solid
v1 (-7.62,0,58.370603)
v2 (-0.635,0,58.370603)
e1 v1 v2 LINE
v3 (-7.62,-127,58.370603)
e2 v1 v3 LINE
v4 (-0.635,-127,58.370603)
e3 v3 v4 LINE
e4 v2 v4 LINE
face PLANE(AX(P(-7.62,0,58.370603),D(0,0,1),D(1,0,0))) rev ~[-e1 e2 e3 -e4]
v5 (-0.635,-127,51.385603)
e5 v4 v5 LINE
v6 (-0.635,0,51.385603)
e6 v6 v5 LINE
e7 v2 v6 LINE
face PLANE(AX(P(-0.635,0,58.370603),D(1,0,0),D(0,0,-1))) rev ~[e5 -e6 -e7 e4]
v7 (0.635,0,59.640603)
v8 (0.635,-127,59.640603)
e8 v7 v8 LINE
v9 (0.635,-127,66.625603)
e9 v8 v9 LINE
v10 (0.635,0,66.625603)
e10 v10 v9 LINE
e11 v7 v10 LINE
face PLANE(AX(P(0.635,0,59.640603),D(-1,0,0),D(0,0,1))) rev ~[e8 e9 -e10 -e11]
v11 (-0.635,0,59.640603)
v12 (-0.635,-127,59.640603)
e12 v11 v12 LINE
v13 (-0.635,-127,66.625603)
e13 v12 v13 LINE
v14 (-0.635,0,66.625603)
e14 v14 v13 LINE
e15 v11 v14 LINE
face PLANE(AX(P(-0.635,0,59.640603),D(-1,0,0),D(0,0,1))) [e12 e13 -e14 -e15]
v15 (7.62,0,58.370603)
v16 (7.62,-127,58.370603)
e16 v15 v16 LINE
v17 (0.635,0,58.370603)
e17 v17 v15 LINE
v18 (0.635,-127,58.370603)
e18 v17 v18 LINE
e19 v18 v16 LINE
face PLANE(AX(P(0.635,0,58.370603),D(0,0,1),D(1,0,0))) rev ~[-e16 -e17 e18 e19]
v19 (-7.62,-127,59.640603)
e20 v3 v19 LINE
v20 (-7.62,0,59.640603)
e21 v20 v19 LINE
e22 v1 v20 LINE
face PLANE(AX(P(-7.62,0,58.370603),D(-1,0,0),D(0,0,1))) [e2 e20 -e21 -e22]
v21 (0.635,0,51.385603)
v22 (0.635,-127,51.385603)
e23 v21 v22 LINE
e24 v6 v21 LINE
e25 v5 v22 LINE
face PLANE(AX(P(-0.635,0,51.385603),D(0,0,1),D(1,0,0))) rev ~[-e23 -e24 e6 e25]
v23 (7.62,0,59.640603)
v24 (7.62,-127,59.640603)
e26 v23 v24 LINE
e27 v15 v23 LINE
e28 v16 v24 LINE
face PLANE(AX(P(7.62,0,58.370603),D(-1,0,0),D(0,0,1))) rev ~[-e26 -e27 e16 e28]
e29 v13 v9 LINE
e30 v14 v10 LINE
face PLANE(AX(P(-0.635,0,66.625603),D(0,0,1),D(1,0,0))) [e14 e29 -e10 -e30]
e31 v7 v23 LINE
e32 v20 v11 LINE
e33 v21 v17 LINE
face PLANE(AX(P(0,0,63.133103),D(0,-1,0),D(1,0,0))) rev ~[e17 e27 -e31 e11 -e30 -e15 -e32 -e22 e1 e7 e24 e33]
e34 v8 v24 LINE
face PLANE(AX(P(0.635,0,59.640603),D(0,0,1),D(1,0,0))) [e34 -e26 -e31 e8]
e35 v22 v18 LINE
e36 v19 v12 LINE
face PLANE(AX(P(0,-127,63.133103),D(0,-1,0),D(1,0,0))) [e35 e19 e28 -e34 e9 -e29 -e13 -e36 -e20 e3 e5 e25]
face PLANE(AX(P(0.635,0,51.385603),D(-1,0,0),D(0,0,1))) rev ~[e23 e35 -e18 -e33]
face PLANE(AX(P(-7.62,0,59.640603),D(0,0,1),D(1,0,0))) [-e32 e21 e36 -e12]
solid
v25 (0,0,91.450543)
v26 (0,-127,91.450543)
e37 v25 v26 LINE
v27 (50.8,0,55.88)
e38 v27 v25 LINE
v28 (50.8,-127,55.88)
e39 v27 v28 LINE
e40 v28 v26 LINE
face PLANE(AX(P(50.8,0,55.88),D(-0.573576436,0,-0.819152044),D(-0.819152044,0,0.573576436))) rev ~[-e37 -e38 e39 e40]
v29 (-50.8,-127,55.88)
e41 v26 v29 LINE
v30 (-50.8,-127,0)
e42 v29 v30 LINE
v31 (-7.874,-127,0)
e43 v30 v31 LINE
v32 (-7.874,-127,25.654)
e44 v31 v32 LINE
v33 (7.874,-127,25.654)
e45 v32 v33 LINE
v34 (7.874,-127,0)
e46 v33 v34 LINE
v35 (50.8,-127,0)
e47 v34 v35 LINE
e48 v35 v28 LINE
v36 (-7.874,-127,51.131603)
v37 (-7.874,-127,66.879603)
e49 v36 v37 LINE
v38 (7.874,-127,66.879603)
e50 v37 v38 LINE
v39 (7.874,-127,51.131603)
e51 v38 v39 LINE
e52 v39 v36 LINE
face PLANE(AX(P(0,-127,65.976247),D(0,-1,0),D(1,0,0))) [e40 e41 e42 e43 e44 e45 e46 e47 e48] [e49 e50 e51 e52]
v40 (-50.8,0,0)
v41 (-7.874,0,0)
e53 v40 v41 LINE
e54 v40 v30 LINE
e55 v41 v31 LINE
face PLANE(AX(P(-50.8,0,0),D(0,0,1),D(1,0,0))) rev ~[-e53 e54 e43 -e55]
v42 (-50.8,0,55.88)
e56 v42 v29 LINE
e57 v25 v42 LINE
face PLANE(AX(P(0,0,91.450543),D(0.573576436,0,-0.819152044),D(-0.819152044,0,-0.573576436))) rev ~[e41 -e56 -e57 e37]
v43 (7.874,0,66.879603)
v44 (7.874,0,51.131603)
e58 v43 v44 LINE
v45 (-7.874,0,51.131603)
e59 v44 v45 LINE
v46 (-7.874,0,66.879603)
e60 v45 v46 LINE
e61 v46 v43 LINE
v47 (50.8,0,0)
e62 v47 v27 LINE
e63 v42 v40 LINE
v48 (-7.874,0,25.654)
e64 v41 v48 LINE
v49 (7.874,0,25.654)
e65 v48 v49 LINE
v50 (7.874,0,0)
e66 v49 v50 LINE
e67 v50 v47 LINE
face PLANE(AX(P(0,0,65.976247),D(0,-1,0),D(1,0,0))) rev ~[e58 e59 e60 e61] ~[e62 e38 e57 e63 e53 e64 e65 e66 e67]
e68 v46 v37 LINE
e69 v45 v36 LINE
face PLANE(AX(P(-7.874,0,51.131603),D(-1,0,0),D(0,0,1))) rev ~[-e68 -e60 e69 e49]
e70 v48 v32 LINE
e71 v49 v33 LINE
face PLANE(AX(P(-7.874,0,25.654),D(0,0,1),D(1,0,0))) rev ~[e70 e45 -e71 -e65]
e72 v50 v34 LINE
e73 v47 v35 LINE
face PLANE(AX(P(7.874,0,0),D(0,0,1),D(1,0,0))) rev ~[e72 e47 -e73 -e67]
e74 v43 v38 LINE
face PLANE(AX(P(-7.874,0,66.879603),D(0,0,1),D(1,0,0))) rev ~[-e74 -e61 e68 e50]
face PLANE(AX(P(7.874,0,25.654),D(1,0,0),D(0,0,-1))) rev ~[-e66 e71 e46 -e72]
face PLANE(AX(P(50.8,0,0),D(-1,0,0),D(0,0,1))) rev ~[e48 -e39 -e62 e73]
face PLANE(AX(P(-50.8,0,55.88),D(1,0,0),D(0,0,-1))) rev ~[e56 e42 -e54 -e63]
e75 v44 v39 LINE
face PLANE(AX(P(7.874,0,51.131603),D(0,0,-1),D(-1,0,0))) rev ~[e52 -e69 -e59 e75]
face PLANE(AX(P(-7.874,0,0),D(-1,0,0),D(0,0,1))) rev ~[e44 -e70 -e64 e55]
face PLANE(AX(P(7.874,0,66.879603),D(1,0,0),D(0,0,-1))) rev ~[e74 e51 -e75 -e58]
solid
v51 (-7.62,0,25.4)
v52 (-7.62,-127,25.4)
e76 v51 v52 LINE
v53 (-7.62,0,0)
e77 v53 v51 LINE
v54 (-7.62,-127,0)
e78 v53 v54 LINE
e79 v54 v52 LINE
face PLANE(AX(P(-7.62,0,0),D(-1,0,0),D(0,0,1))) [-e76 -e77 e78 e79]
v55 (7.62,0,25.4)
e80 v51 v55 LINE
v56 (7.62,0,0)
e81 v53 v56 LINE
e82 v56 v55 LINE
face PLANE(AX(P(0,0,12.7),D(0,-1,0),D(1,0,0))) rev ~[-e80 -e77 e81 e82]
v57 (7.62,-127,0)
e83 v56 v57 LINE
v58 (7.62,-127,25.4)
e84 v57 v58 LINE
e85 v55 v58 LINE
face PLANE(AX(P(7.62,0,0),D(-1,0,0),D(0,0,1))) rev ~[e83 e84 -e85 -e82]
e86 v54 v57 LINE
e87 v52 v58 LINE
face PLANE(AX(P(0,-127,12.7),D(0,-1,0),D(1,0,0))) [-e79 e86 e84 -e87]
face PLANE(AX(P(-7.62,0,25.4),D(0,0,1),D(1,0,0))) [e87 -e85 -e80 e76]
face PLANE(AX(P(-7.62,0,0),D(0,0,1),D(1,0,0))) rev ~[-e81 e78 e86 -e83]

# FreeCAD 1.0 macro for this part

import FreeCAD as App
import Part
import Sketcher
from FreeCAD import Vector
Q = App.Units.Quantity

doc = App.newDocument("Part")
body = doc.addObject("PartDesign::Body", "Body")

# Sketch on XZ plane
sketch1 = body.newObject("Sketcher::SketchObject", "Sketch")
sketch1.AttachmentSupport = (doc.getObject("XZ_Plane"), [""])
sketch1.MapMode = "FlatFace"
sketch1.addGeometry(Part.LineSegment(Vector(0, 91.450543, 0), Vector(-50.8, 55.88, 0)), False)
sketch1.addGeometry(Part.LineSegment(Vector(-50.8, 55.88, 0), Vector(-50.8, 0, 0)), False)
sketch1.addGeometry(Part.LineSegment(Vector(-50.8, 0, 0), Vector(-7.874, 0, 0)), False)
sketch1.addGeometry(Part.LineSegment(Vector(-7.874, 0, 0), Vector(-7.874, 25.654, 0)), False)
sketch1.addGeometry(Part.LineSegment(Vector(-7.874, 25.654, 0), Vector(7.874, 25.654, 0)), False)
sketch1.addGeometry(Part.LineSegment(Vector(7.874, 25.654, 0), Vector(7.874, 0, 0)), False)
sketch1.addGeometry(Part.LineSegment(Vector(7.874, 0, 0), Vector(50.8, 0, 0)), False)
sketch1.addGeometry(Part.LineSegment(Vector(50.8, 0, 0), Vector(50.8, 55.88, 0)), False)
sketch1.addGeometry(Part.LineSegment(Vector(50.8, 55.88, 0), Vector(0, 91.450543, 0)), False)
sketch1.addGeometry(Part.LineSegment(Vector(-7.874, 66.879603, 0), Vector(7.874, 66.879603, 0)), False)
sketch1.addGeometry(Part.LineSegment(Vector(7.874, 66.879603, 0), Vector(7.874, 51.131603, 0)), False)
sketch1.addGeometry(Part.LineSegment(Vector(7.874, 51.131603, 0), Vector(-7.874, 51.131603, 0)), False)
sketch1.addGeometry(Part.LineSegment(Vector(-7.874, 51.131603, 0), Vector(-7.874, 66.879603, 0)), False)
sketch1.addConstraint(Sketcher.Constraint("Coincident", 0, 2, 1, 1))
sketch1.addConstraint(Sketcher.Constraint("Coincident", 1, 2, 2, 1))
sketch1.addConstraint(Sketcher.Constraint("Coincident", 2, 2, 3, 1))
sketch1.addConstraint(Sketcher.Constraint("Coincident", 3, 2, 4, 1))
sketch1.addConstraint(Sketcher.Constraint("Coincident", 4, 2, 5, 1))
sketch1.addConstraint(Sketcher.Constraint("Coincident", 5, 2, 6, 1))
sketch1.addConstraint(Sketcher.Constraint("Coincident", 6, 2, 7, 1))
sketch1.addConstraint(Sketcher.Constraint("Coincident", 7, 2, 8, 1))
sketch1.addConstraint(Sketcher.Constraint("Coincident", 8, 2, 0, 1))
sketch1.addConstraint(Sketcher.Constraint("Coincident", 9, 2, 10, 1))
sketch1.addConstraint(Sketcher.Constraint("Coincident", 10, 2, 11, 1))
sketch1.addConstraint(Sketcher.Constraint("Coincident", 11, 2, 12, 1))
sketch1.addConstraint(Sketcher.Constraint("Coincident", 12, 2, 9, 1))
sketch1.addConstraint(Sketcher.Constraint("Vertical", 1))
sketch1.addConstraint(Sketcher.Constraint("Horizontal", 2))
sketch1.addConstraint(Sketcher.Constraint("Vertical", 3))
sketch1.addConstraint(Sketcher.Constraint("Horizontal", 4))
sketch1.addConstraint(Sketcher.Constraint("Vertical", 5))
sketch1.addConstraint(Sketcher.Constraint("Horizontal", 6))
sketch1.addConstraint(Sketcher.Constraint("Vertical", 7))
sketch1.addConstraint(Sketcher.Constraint("Horizontal", 9))
sketch1.addConstraint(Sketcher.Constraint("Vertical", 10))
sketch1.addConstraint(Sketcher.Constraint("Horizontal", 11))
sketch1.addConstraint(Sketcher.Constraint("Vertical", 12))
sketch1.addConstraint(Sketcher.Constraint("Symmetric", 2, 2, 5, 2, -1, 1))
sketch1.addConstraint(Sketcher.Constraint("Symmetric", 1, 2, 6, 2, -2))
sketch1.addConstraint(Sketcher.Constraint("PointOnObject", 8, 2, -2))
sketch1.addConstraint(Sketcher.Constraint("Horizontal", 0, 2, 7, 2))
sketch1.addConstraint(Sketcher.Constraint("Vertical", 5, 2, 9, 2))
sketch1.addConstraint(Sketcher.Constraint("Vertical", 3, 2, 11, 2))
sketch1.addConstraint(Sketcher.Constraint("Equal", 11, 10))
sketch1.addConstraint(Sketcher.Constraint("DistanceY", 1, 2, 1, 1, Q("2.2 in")))
sketch1.addConstraint(Sketcher.Constraint("DistanceX", 0, 2, -1, 1, Q("2 in")))
sketch1.addConstraint(Sketcher.Constraint("Angle", 0, Q("-145 deg")))
sketch1.addConstraint(Sketcher.Constraint("DistanceX", 2, 1, 2, 2, Q("1.69 in")))
sketch1.addConstraint(Sketcher.Constraint("DistanceY", 3, 1, 3, 2, Q("1.01 in")))
sketch1.addConstraint(Sketcher.Constraint("DistanceY", 9, 2, 8, 2, Q("24.57094 mm")))
pad1 = body.newObject("PartDesign::Pad", "Pad")
pad1.Profile = sketch1
pad1.Length = Q("5 in")
body2 = doc.addObject("PartDesign::Body", "Body001")

# Sketch on XZ plane
sketch2 = body2.newObject("Sketcher::SketchObject", "Sketch001")
sketch2.AttachmentSupport = (doc.getObject("XZ_Plane001"), [""])
sketch2.MapMode = "FlatFace"
sketch2.addGeometry(Part.LineSegment(Vector(-0.635, 66.625603, 0), Vector(-0.635, 59.640603, 0)), False)
sketch2.addGeometry(Part.LineSegment(Vector(-0.635, 59.640603, 0), Vector(-7.62, 59.640603, 0)), False)
sketch2.addGeometry(Part.LineSegment(Vector(-7.62, 59.640603, 0), Vector(-7.62, 58.370603, 0)), False)
sketch2.addGeometry(Part.LineSegment(Vector(-7.62, 58.370603, 0), Vector(-0.635, 58.370603, 0)), False)
sketch2.addGeometry(Part.LineSegment(Vector(-0.635, 58.370603, 0), Vector(-0.635, 51.385603, 0)), False)
sketch2.addGeometry(Part.LineSegment(Vector(-0.635, 51.385603, 0), Vector(0.635, 51.385603, 0)), False)
sketch2.addGeometry(Part.LineSegment(Vector(0.635, 51.385603, 0), Vector(0.635, 58.370603, 0)), False)
sketch2.addGeometry(Part.LineSegment(Vector(0.635, 58.370603, 0), Vector(7.62, 58.370603, 0)), False)
sketch2.addGeometry(Part.LineSegment(Vector(7.62, 58.370603, 0), Vector(7.62, 59.640603, 0)), False)
sketch2.addGeometry(Part.LineSegment(Vector(7.62, 59.640603, 0), Vector(0.635, 59.640603, 0)), False)
sketch2.addGeometry(Part.LineSegment(Vector(0.635, 59.640603, 0), Vector(0.635, 66.625603, 0)), False)
sketch2.addGeometry(Part.LineSegment(Vector(0.635, 66.625603, 0), Vector(-0.635, 66.625603, 0)), False)
sketch2.addConstraint(Sketcher.Constraint("Coincident", 0, 2, 1, 1))
sketch2.addConstraint(Sketcher.Constraint("Coincident", 1, 2, 2, 1))
sketch2.addConstraint(Sketcher.Constraint("Coincident", 2, 2, 3, 1))
sketch2.addConstraint(Sketcher.Constraint("Coincident", 3, 2, 4, 1))
sketch2.addConstraint(Sketcher.Constraint("Coincident", 4, 2, 5, 1))
sketch2.addConstraint(Sketcher.Constraint("Coincident", 5, 2, 6, 1))
sketch2.addConstraint(Sketcher.Constraint("Coincident", 6, 2, 7, 1))
sketch2.addConstraint(Sketcher.Constraint("Coincident", 7, 2, 8, 1))
sketch2.addConstraint(Sketcher.Constraint("Coincident", 8, 2, 9, 1))
sketch2.addConstraint(Sketcher.Constraint("Coincident", 9, 2, 10, 1))
sketch2.addConstraint(Sketcher.Constraint("Coincident", 10, 2, 11, 1))
sketch2.addConstraint(Sketcher.Constraint("Coincident", 11, 2, 0, 1))
sketch2.addConstraint(Sketcher.Constraint("Vertical", 0))
sketch2.addConstraint(Sketcher.Constraint("Horizontal", 1))
sketch2.addConstraint(Sketcher.Constraint("Vertical", 2))
sketch2.addConstraint(Sketcher.Constraint("Horizontal", 3))
sketch2.addConstraint(Sketcher.Constraint("Vertical", 4))
sketch2.addConstraint(Sketcher.Constraint("Horizontal", 5))
sketch2.addConstraint(Sketcher.Constraint("Vertical", 6))
sketch2.addConstraint(Sketcher.Constraint("Horizontal", 7))
sketch2.addConstraint(Sketcher.Constraint("Vertical", 8))
sketch2.addConstraint(Sketcher.Constraint("Horizontal", 9))
sketch2.addConstraint(Sketcher.Constraint("Vertical", 10))
sketch2.addConstraint(Sketcher.Constraint("Horizontal", 11))
sketch2.addConstraint(Sketcher.Constraint("Symmetric", 3, 2, 6, 2, -2))
sketch2.addConstraint(Sketcher.Constraint("Symmetric", 1, 2, 8, 2, -2))
sketch2.addConstraint(Sketcher.Constraint("Vertical", 0, 2, 3, 2))
sketch2.addConstraint(Sketcher.Constraint("Vertical", 6, 2, 9, 2))
sketch2.addConstraint(Sketcher.Constraint("Equal", 9, 0))
sketch2.addConstraint(Sketcher.Constraint("Equal", 11, 2))
sketch2.addConstraint(Sketcher.Constraint("Equal", 0, 4))
sketch2.addConstraint(Sketcher.Constraint("DistanceX", 5, 1, 5, 2, Q("0.05 in")))
sketch2.addConstraint(Sketcher.Constraint("DistanceX", 1, 2, -1, 1, Q("0.3 in")))
sketch2.addConstraint(Sketcher.Constraint("DistanceY", -1, 1, 0, 2, Q("59.640603 mm")))
pad2 = body2.newObject("PartDesign::Pad", "Pad001")
pad2.Profile = sketch2
pad2.Length = Q("5 in")
body3 = doc.addObject("PartDesign::Body", "Body002")

# Sketch on XZ plane
sketch3 = body3.newObject("Sketcher::SketchObject", "Sketch002")
sketch3.AttachmentSupport = (doc.getObject("XZ_Plane002"), [""])
sketch3.MapMode = "FlatFace"
sketch3.addGeometry(Part.LineSegment(Vector(-7.62, 25.4, 0), Vector(-7.62, 0, 0)), False)
sketch3.addGeometry(Part.LineSegment(Vector(-7.62, 0, 0), Vector(7.62, 0, 0)), False)
sketch3.addGeometry(Part.LineSegment(Vector(7.62, 0, 0), Vector(7.62, 25.4, 0)), False)
sketch3.addGeometry(Part.LineSegment(Vector(7.62, 25.4, 0), Vector(-7.62, 25.4, 0)), False)
sketch3.addConstraint(Sketcher.Constraint("Coincident", 0, 2, 1, 1))
sketch3.addConstraint(Sketcher.Constraint("Coincident", 1, 2, 2, 1))
sketch3.addConstraint(Sketcher.Constraint("Coincident", 2, 2, 3, 1))
sketch3.addConstraint(Sketcher.Constraint("Coincident", 3, 2, 0, 1))
sketch3.addConstraint(Sketcher.Constraint("Vertical", 0))
sketch3.addConstraint(Sketcher.Constraint("Horizontal", 1))
sketch3.addConstraint(Sketcher.Constraint("Vertical", 2))
sketch3.addConstraint(Sketcher.Constraint("Horizontal", 3))
sketch3.addConstraint(Sketcher.Constraint("Symmetric", 0, 2, 1, 2, -1, 1))
sketch3.addConstraint(Sketcher.Constraint("DistanceY", 0, 2, 0, 1, Q("1 in")))
sketch3.addConstraint(Sketcher.Constraint("DistanceX", 1, 1, 1, 2, Q("0.6 in")))
pad3 = body3.newObject("PartDesign::Pad", "Pad002")
pad3.Profile = sketch3
pad3.Length = Q("5 in")

doc.recompute()
